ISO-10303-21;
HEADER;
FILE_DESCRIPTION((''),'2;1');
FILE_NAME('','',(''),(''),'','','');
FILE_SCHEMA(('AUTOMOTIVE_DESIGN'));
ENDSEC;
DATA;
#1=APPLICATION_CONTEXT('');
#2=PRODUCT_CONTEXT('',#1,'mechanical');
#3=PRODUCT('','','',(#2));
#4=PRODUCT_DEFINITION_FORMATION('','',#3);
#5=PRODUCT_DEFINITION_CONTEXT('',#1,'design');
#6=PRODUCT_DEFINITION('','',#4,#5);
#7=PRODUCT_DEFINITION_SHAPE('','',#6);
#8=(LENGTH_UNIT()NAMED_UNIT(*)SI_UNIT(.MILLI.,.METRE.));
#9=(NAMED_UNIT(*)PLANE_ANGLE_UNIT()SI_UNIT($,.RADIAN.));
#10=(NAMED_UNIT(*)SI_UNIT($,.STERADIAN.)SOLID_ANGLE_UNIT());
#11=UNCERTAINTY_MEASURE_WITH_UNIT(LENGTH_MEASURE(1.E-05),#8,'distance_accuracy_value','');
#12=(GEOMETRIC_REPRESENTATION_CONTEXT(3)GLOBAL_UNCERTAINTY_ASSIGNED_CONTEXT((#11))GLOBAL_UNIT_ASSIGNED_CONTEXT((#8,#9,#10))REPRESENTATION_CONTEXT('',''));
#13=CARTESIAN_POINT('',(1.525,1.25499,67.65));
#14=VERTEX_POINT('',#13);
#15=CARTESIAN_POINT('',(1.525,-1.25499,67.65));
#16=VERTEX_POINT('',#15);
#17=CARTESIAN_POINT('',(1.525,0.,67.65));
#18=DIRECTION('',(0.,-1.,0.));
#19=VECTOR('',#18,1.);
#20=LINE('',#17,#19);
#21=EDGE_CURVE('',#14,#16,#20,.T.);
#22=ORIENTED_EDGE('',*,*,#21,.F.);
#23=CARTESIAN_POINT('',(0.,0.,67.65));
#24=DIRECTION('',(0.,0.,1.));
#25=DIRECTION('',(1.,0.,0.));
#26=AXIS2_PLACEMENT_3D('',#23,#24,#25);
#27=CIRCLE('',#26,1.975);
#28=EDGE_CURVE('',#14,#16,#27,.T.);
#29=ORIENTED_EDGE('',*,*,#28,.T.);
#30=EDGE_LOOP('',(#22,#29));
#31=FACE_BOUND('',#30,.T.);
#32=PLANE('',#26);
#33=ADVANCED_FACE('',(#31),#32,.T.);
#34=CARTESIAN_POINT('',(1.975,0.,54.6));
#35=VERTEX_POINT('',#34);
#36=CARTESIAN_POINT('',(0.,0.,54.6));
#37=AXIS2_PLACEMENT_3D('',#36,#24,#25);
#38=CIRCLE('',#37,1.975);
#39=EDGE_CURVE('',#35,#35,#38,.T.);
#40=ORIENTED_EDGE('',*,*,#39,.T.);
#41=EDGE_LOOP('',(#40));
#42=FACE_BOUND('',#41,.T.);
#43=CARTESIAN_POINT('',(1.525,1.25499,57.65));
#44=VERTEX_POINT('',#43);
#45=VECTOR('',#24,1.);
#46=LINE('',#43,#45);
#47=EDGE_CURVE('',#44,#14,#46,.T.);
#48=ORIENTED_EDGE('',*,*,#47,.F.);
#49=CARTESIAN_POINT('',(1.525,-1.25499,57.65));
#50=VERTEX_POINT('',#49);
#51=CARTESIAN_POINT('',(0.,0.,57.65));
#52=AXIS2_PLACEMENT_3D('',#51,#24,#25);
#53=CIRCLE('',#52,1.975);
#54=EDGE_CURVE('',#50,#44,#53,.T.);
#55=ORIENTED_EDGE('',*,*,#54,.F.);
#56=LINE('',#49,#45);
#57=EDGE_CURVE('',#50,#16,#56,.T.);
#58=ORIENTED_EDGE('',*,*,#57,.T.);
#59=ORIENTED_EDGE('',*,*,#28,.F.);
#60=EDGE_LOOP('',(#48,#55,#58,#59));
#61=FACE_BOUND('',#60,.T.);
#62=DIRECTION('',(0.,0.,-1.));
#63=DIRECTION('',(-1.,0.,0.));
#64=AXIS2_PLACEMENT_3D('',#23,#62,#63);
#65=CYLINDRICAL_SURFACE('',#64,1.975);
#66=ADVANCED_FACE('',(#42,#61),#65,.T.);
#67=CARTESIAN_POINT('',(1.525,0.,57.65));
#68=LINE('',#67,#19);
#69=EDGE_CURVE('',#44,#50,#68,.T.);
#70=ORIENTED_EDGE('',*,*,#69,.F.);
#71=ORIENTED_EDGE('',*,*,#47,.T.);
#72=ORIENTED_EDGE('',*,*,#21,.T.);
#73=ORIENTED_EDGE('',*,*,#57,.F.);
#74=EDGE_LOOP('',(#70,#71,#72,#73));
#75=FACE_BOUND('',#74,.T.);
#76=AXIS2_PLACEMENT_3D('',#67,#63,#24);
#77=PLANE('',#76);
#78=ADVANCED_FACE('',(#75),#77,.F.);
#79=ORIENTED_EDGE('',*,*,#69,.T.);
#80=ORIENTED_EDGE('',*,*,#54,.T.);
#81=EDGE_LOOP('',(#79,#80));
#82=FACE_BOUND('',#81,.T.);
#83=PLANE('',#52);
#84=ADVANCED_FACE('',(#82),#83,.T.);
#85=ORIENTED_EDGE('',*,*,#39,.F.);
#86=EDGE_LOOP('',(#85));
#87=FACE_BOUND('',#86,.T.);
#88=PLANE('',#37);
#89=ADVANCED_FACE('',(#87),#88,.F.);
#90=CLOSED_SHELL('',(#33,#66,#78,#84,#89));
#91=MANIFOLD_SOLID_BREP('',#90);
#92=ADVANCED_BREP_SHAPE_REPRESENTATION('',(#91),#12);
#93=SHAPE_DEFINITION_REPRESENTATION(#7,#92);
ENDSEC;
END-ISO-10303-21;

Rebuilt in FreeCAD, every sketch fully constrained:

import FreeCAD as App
import Part
import Sketcher

V = App.Vector

doc = App.newDocument("Part")
body = doc.addObject("PartDesign::Body", "Body")

sketch1 = body.newObject("Sketcher::SketchObject", "Sketch")
sketch1.AttachmentSupport = (doc.getObject("XY_Plane"), [""])
sketch1.MapMode = "FlatFace"
sketch1.AttachmentOffset = App.Placement(V(0, 0, 54.6), App.Rotation())
sketch1.addGeometry(Part.Circle(V(0, 0, 0), V(0, 0, 1), 2), False)
sketch1.addConstraint(Sketcher.Constraint("Coincident", 0, 3, -1, 1))
sketch1.addConstraint(Sketcher.Constraint("Diameter", 0, 3.95))
pad1 = body.newObject("PartDesign::Pad", "Pad")
pad1.Profile = sketch1
pad1.Length = 13.05

sketch2 = body.newObject("Sketcher::SketchObject", "Sketch001")
sketch2.AttachmentSupport = (doc.getObject("XY_Plane"), [""])
sketch2.MapMode = "FlatFace"
sketch2.AttachmentOffset = App.Placement(V(0, 0, 67.65), App.Rotation())
sketch2.addGeometry(Part.LineSegment(V(1.5, 1.3, 0), V(1.5, -1.3, 0)), False)
sketch2.addGeometry(Part.LineSegment(V(1.5, -1.3, 0), V(2.4, -0.9, 0)), False)
sketch2.addGeometry(Part.LineSegment(V(2.4, -0.9, 0), V(2.7, 0.4, 0)), False)
sketch2.addGeometry(Part.LineSegment(V(2.7, 0.4, 0), V(1.5, 1.3, 0)), False)
sketch2.addConstraint(Sketcher.Constraint("Coincident", 0, 2, 1, 1))
sketch2.addConstraint(Sketcher.Constraint("Coincident", 1, 2, 2, 1))
sketch2.addConstraint(Sketcher.Constraint("Coincident", 2, 2, 3, 1))
sketch2.addConstraint(Sketcher.Constraint("Coincident", 3, 2, 0, 1))
sketch2.addConstraint(Sketcher.Constraint("Vertical", 0))
sketch2.addConstraint(Sketcher.Constraint("DistanceX", -1, 1, 0, 2, 1.525))
sketch2.addConstraint(Sketcher.Constraint("DistanceY", 0, 2, 0, 1, 2.50998))
sketch2.addConstraint(Sketcher.Constraint("Distance", 3, 1.410919))
sketch2.addConstraint(Sketcher.Constraint("DistanceY", 0, 2, -1, 1, 1.25499))
sketch2.addConstraint(Sketcher.Constraint("DistanceY", -1, 1, 2, 2, 0.419061))
sketch2.addConstraint(Sketcher.Constraint("DistanceX", 1, 2, 2, 2, 0.307688))
sketch2.addConstraint(Sketcher.Constraint("DistanceY", 1, 2, 2, 2, 1.274109))
pocket1 = body.newObject("PartDesign::Pocket", "Pocket")
pocket1.Profile = sketch2
pocket1.Length = 10

doc.recompute()
